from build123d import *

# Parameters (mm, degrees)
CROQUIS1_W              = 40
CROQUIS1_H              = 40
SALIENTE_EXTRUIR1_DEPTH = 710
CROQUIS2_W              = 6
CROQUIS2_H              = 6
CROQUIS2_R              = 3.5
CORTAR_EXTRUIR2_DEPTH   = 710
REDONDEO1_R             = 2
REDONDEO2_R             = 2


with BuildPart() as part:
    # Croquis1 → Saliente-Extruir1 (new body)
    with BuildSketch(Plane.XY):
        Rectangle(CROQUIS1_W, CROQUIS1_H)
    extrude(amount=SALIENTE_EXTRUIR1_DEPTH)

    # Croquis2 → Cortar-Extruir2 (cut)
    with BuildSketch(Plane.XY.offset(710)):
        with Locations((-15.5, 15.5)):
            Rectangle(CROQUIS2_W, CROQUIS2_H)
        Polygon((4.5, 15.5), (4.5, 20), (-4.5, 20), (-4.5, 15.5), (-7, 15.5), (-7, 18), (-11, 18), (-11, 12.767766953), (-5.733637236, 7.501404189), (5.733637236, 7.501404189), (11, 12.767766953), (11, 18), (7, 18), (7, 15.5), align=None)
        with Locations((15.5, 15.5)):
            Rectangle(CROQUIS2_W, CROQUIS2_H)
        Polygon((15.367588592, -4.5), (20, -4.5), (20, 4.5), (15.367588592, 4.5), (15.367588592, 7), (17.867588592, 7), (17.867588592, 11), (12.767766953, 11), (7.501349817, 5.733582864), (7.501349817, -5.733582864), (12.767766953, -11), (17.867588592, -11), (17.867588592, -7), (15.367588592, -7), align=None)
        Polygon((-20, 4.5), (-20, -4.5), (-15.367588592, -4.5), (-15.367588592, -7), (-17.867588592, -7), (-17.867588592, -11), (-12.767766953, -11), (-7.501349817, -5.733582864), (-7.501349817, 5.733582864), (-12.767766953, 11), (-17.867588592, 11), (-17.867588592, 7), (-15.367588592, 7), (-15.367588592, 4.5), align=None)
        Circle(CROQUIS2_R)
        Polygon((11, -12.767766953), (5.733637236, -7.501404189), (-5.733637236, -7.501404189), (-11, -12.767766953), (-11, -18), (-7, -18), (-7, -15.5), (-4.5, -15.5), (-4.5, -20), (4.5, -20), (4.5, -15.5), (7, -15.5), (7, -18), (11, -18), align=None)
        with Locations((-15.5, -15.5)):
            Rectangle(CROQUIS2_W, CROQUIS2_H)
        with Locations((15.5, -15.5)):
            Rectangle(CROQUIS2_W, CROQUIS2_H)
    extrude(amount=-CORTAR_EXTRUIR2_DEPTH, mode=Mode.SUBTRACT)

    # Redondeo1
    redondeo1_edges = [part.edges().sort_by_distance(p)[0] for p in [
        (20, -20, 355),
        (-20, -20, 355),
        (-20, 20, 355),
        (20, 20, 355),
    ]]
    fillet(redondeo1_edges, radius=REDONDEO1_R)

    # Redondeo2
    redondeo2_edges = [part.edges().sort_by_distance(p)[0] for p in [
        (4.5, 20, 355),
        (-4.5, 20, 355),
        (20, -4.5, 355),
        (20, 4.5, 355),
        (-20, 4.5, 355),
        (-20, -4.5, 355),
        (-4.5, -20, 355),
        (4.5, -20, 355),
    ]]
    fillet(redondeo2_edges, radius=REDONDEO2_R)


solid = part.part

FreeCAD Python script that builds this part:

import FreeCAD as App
import Part
import Sketcher


def edges_at(feature, points):
    """Names of the edges that pass closest to the given points."""
    edges = feature.Shape.Edges
    near = lambda p: min(range(len(edges)), key=lambda i: edges[i].distToShape(Part.Vertex(*p))[0])
    return sorted({f"Edge{near(p) + 1}" for p in points})


def add_polygon(sketch, points):
    """Adds a closed chain of lines whose ends are joined by coincident constraints."""
    first, n = sketch.GeometryCount, len(points)
    for a, b in zip(points, points[1:] + points[:1]):
        sketch.addGeometry(Part.LineSegment(App.Vector(*a, 0), App.Vector(*b, 0)), False)
    for i in range(n):
        sketch.addConstraint(Sketcher.Constraint("Coincident", first + i, 2, first + (i + 1) % n, 1))

doc = App.newDocument("Part")
body = doc.addObject("PartDesign::Body", "Body")

# Sketch on XY plane
sketch1 = body.newObject("Sketcher::SketchObject", "Sketch")
sketch1.AttachmentSupport = (doc.getObject("XY_Plane"), [""])
sketch1.MapMode = "FlatFace"
add_polygon(sketch1, [(-20, 20), (-20, -20), (20, -20), (20, 20)])  # lines 0-3
sketch1.addConstraint([
    Sketcher.Constraint("Vertical", 0),
    Sketcher.Constraint("Horizontal", 1),
    Sketcher.Constraint("Vertical", 2),
    Sketcher.Constraint("Horizontal", 3),
    Sketcher.Constraint("Symmetric", 0, 2, 2, 2, -1, 1),
    Sketcher.Constraint("Equal", 3, 0),
    Sketcher.Constraint("DistanceX", 1, 1, 1, 2, 40.0),
])
pad1 = body.newObject("PartDesign::Pad", "Pad")
pad1.Profile = sketch1
pad1.Length = 710

# Sketch on XY plane
sketch2 = body.newObject("Sketcher::SketchObject", "Sketch001")
sketch2.AttachmentSupport = (doc.getObject("XY_Plane"), [""])
sketch2.MapMode = "FlatFace"
sketch2.AttachmentOffset = App.Placement(App.Vector(0, 0, 710), App.Rotation())
add_polygon(sketch2, [(-18.5, 18.5), (-18.5, 12.5), (-12.5, 12.5), (-12.5, 18.5)])  # lines 0-3
add_polygon(sketch2, [(4.5, 15.5), (4.5, 20), (-4.5, 20), (-4.5, 15.5), (-7, 15.5), (-7, 18), (-11, 18), (-11, 12.8), (-5.7, 7.5), (5.7, 7.5), (11, 12.8), (11, 18), (7, 18), (7, 15.5)])  # lines 4-17
add_polygon(sketch2, [(12.5, 18.5), (12.5, 12.5), (18.5, 12.5), (18.5, 18.5)])  # lines 18-21
add_polygon(sketch2, [(15.4, -4.5), (20, -4.5), (20, 4.5), (15.4, 4.5), (15.4, 7), (17.9, 7), (17.9, 11), (12.8, 11), (7.5, 5.7), (7.5, -5.7), (12.8, -11), (17.9, -11), (17.9, -7), (15.4, -7)])  # lines 22-35
add_polygon(sketch2, [(-20, 4.5), (-20, -4.5), (-15.4, -4.5), (-15.4, -7), (-17.9, -7), (-17.9, -11), (-12.8, -11), (-7.5, -5.7), (-7.5, 5.7), (-12.8, 11), (-17.9, 11), (-17.9, 7), (-15.4, 7), (-15.4, 4.5)])  # lines 36-49
sketch2.addGeometry(Part.Circle(App.Vector(0, 0, 0), App.Vector(0, 0, 1), 3.5), False)  # 50
add_polygon(sketch2, [(11, -12.8), (5.7, -7.5), (-5.7, -7.5), (-11, -12.8), (-11, -18), (-7, -18), (-7, -15.5), (-4.5, -15.5), (-4.5, -20), (4.5, -20), (4.5, -15.5), (7, -15.5), (7, -18), (11, -18)])  # lines 51-64
add_polygon(sketch2, [(-18.5, -12.5), (-18.5, -18.5), (-12.5, -18.5), (-12.5, -12.5)])  # lines 65-68
add_polygon(sketch2, [(12.5, -12.5), (12.5, -18.5), (18.5, -18.5), (18.5, -12.5)])  # lines 69-72
sketch2.addConstraint([
    Sketcher.Constraint("Vertical", 0),
    Sketcher.Constraint("Horizontal", 1),
    Sketcher.Constraint("Vertical", 2),
    Sketcher.Constraint("Horizontal", 3),
    Sketcher.Constraint("Vertical", 4),
    Sketcher.Constraint("Horizontal", 5),
    Sketcher.Constraint("Vertical", 6),
    Sketcher.Constraint("Horizontal", 7),
    Sketcher.Constraint("Vertical", 8),
    Sketcher.Constraint("Horizontal", 9),
    Sketcher.Constraint("Vertical", 10),
    Sketcher.Constraint("Horizontal", 12),
    Sketcher.Constraint("Vertical", 14),
    Sketcher.Constraint("Horizontal", 15),
    Sketcher.Constraint("Vertical", 16),
    Sketcher.Constraint("Horizontal", 17),
    Sketcher.Constraint("Vertical", 18),
    Sketcher.Constraint("Horizontal", 19),
    Sketcher.Constraint("Vertical", 20),
    Sketcher.Constraint("Horizontal", 21),
    Sketcher.Constraint("Horizontal", 22),
    Sketcher.Constraint("Vertical", 23),
    Sketcher.Constraint("Horizontal", 24),
    Sketcher.Constraint("Vertical", 25),
    Sketcher.Constraint("Horizontal", 26),
    Sketcher.Constraint("Vertical", 27),
    Sketcher.Constraint("Horizontal", 28),
    Sketcher.Constraint("Vertical", 30),
    Sketcher.Constraint("Horizontal", 32),
    Sketcher.Constraint("Vertical", 33),
    Sketcher.Constraint("Horizontal", 34),
    Sketcher.Constraint("Vertical", 35),
    Sketcher.Constraint("Vertical", 36),
    Sketcher.Constraint("Horizontal", 37),
    Sketcher.Constraint("Vertical", 38),
    Sketcher.Constraint("Horizontal", 39),
    Sketcher.Constraint("Vertical", 40),
    Sketcher.Constraint("Horizontal", 41),
    Sketcher.Constraint("Vertical", 43),
    Sketcher.Constraint("Horizontal", 45),
    Sketcher.Constraint("Vertical", 46),
    Sketcher.Constraint("Horizontal", 47),
    Sketcher.Constraint("Vertical", 48),
    Sketcher.Constraint("Horizontal", 49),
    Sketcher.Constraint("Horizontal", 52),
    Sketcher.Constraint("Vertical", 54),
    Sketcher.Constraint("Horizontal", 55),
    Sketcher.Constraint("Vertical", 56),
    Sketcher.Constraint("Horizontal", 57),
    Sketcher.Constraint("Vertical", 58),
    Sketcher.Constraint("Horizontal", 59),
    Sketcher.Constraint("Vertical", 60),
    Sketcher.Constraint("Horizontal", 61),
    Sketcher.Constraint("Vertical", 62),
    Sketcher.Constraint("Horizontal", 63),
    Sketcher.Constraint("Vertical", 64),
    Sketcher.Constraint("Vertical", 65),
    Sketcher.Constraint("Horizontal", 66),
    Sketcher.Constraint("Vertical", 67),
    Sketcher.Constraint("Horizontal", 68),
    Sketcher.Constraint("Vertical", 69),
    Sketcher.Constraint("Horizontal", 70),
    Sketcher.Constraint("Vertical", 71),
    Sketcher.Constraint("Horizontal", 72),
    Sketcher.Constraint("Coincident", 50, 3, -1, 1),
    Sketcher.Constraint("Symmetric", 23, 2, 36, 2, -1, 1),
    Sketcher.Constraint("Symmetric", 25, 2, 38, 2, -1, 1),
    Sketcher.Constraint("Symmetric", 27, 2, 40, 2, -1, 1),
    Sketcher.Constraint("Symmetric", 29, 2, 42, 2, -1, 1),
    Sketcher.Constraint("Symmetric", 31, 2, 44, 2, -1, 1),
    Sketcher.Constraint("Symmetric", 33, 2, 46, 2, -1, 1),
    Sketcher.Constraint("Symmetric", 35, 2, 48, 2, -1, 1),
    Sketcher.Constraint("Symmetric", 11, 2, 51, 2, -1, 1),
    Sketcher.Constraint("Symmetric", 13, 2, 53, 2, -1, 1),
    Sketcher.Constraint("Symmetric", 15, 2, 55, 2, -1, 1),
    Sketcher.Constraint("Symmetric", 17, 2, 57, 2, -1, 1),
    Sketcher.Constraint("Symmetric", 5, 2, 59, 2, -1, 1),
    Sketcher.Constraint("Symmetric", 7, 2, 61, 2, -1, 1),
    Sketcher.Constraint("Symmetric", 9, 2, 63, 2, -1, 1),
    Sketcher.Constraint("Symmetric", 20, 2, 65, 2, -1, 1),
    Sketcher.Constraint("Symmetric", 18, 2, 67, 2, -1, 1),
    Sketcher.Constraint("Symmetric", 2, 2, 69, 2, -1, 1),
    Sketcher.Constraint("Symmetric", 0, 2, 71, 2, -1, 1),
    Sketcher.Constraint("Symmetric", 10, 2, 13, 2, -2),
    Sketcher.Constraint("Symmetric", 8, 2, 15, 2, -2),
    Sketcher.Constraint("Symmetric", 6, 2, 17, 2, -2),
    Sketcher.Constraint("Symmetric", 1, 2, 18, 2, -2),
    Sketcher.Constraint("Symmetric", 3, 2, 20, 2, -2),
    Sketcher.Constraint("Symmetric", 35, 2, 37, 2, -2),
    Sketcher.Constraint("Symmetric", 33, 2, 39, 2, -2),
    Sketcher.Constraint("Symmetric", 31, 2, 41, 2, -2),
    Sketcher.Constraint("Perpendicular", 11, 13),
    Sketcher.Constraint("Parallel", 13, 29),
    Sketcher.Constraint("Perpendicular", 29, 31),
    Sketcher.Constraint("Perpendicular", 31, 42),
    Sketcher.Constraint("Perpendicular", 42, 44),
    Sketcher.Constraint("Parallel", 44, 51),
    Sketcher.Constraint("Perpendicular", 51, 53),
    Sketcher.Constraint("Horizontal", 30, 2, 42, 2),
    Sketcher.Constraint("Equal", 17, 26),
    Sketcher.Constraint("Equal", 72, 0),
    Sketcher.Constraint("Equal", 61, 8),
    Sketcher.Constraint("Equal", 59, 23),
    Sketcher.Constraint("Equal", 16, 25),
    Sketcher.Constraint("Equal", 63, 27),
    Sketcher.Constraint("Diameter", 50, 7.0),
    Sketcher.Constraint("DistanceX", 1, 1, 1, 2, 6.0),
    Sketcher.Constraint("DistanceX", 5, 2, 5, 1, 9.0),
    Sketcher.Constraint("DistanceX", 9, 2, 9, 1, 4.0),
    Sketcher.Constraint("DistanceX", 7, 2, 7, 1, 2.5),
    Sketcher.Constraint("DistanceY", 4, 1, 4, 2, 4.5),
    Sketcher.Constraint("DistanceY", -1, 1, 4, 2, 20.0),
    Sketcher.Constraint("DistanceX", -1, 1, 22, 2, 20.0),
    Sketcher.Constraint("DistanceX", 0, 2, -1, 1, 18.5),
    Sketcher.Constraint("DistanceY", -1, 1, 0, 2, 12.5),
    Sketcher.Constraint("DistanceX", 22, 1, 22, 2, 4.632411),
    Sketcher.Constraint("DistanceX", 28, 2, 28, 1, 5.099822),
    Sketcher.Constraint("Distance", 11, 7.447762),
    Sketcher.Constraint("Distance", 29, 7.447839),
    Sketcher.Constraint("DistanceY", 10, 2, 10, 1, 5.232233),
])
pocket1 = body.newObject("PartDesign::Pocket", "Pocket")
pocket1.Profile = sketch2
pocket1.Length = 710
doc.recompute()

fillet = body.newObject("PartDesign::Fillet", "Fillet")
fillet.Base = (pocket1, edges_at(pocket1, [
    (20, -20, 355),
    (-20, -20, 355),
    (-20, 20, 355),
    (20, 20, 355),
]))
fillet.Radius = 2
doc.recompute()

fillet2 = body.newObject("PartDesign::Fillet", "Fillet001")
fillet2.Base = (fillet, edges_at(fillet, [
    (4.5, 20, 355),
    (-4.5, 20, 355),
    (20, -4.5, 355),
    (20, 4.5, 355),
    (-20, 4.5, 355),
    (-20, -4.5, 355),
    (-4.5, -20, 355),
    (4.5, -20, 355),
]))
fillet2.Radius = 2

doc.recompute()
